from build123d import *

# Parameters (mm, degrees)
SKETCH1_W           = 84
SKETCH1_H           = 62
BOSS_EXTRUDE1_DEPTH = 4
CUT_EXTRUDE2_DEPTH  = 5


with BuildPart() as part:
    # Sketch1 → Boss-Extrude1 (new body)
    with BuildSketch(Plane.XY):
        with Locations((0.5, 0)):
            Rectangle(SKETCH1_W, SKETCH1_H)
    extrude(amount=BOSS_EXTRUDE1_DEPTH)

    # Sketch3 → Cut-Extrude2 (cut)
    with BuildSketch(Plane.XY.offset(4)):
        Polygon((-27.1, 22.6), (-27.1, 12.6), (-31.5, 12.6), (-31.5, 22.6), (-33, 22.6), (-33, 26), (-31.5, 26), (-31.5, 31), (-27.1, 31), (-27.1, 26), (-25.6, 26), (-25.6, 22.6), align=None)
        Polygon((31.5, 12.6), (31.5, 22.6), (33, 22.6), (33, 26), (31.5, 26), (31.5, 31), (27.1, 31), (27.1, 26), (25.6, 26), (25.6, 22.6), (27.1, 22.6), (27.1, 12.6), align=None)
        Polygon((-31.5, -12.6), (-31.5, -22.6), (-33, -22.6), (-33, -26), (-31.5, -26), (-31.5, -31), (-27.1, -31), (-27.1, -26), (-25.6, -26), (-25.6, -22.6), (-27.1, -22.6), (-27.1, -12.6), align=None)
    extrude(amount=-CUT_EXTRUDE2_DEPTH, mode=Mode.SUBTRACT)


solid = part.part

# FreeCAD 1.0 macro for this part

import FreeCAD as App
import Part
import Sketcher

V = App.Vector


def add_polygon(sketch, points):
    """Adds a closed chain of lines whose ends are joined by coincident constraints."""
    first, n = sketch.GeometryCount, len(points)
    for a, b in zip(points, points[1:] + points[:1]):
        sketch.addGeometry(Part.LineSegment(App.Vector(*a, 0), App.Vector(*b, 0)), False)
    for i in range(n):
        sketch.addConstraint(Sketcher.Constraint("Coincident", first + i, 2, first + (i + 1) % n, 1))

doc = App.newDocument("Part")
body = doc.addObject("PartDesign::Body", "Body")

# Sketch on XY plane
sketch1 = body.newObject("Sketcher::SketchObject", "Sketch")
sketch1.AttachmentSupport = (doc.getObject("XY_Plane"), [""])
sketch1.MapMode = "FlatFace"
add_polygon(sketch1, [(-41.5, 31), (-41.5, -31), (42.5, -31), (42.5, 31)])  # lines 0-3
sketch1.addConstraint([
    Sketcher.Constraint("Vertical", 0),
    Sketcher.Constraint("Horizontal", 1),
    Sketcher.Constraint("Vertical", 2),
    Sketcher.Constraint("Horizontal", 3),
    Sketcher.Constraint("DistanceX", 1, 1, 1, 2, 84.0),
    Sketcher.Constraint("DistanceY", 0, 2, 0, 1, 62.0),
    Sketcher.Constraint("DistanceY", 0, 2, -1, 1, 31.0),
    Sketcher.Constraint("DistanceX", 0, 2, -1, 1, 41.5),
])
pad1 = body.newObject("PartDesign::Pad", "Pad")
pad1.Profile = sketch1
pad1.Length = 4

# Sketch on XY plane
sketch2 = body.newObject("Sketcher::SketchObject", "Sketch001")
sketch2.AttachmentSupport = (doc.getObject("XY_Plane"), [""])
sketch2.MapMode = "FlatFace"
sketch2.AttachmentOffset = App.Placement(V(0, 0, 4), App.Rotation())
add_polygon(sketch2, [(-27.1, 12.6), (-27.1, 22.6), (-25.6, 22.6), (-25.6, 26), (-27.1, 26), (-27.1, 31), (-31.5, 31), (-31.5, 26), (-33, 26), (-33, 22.6), (-31.5, 22.6), (-31.5, 12.6)])  # lines 0-11
add_polygon(sketch2, [(31.5, 12.6), (31.5, 22.6), (33, 22.6), (33, 26), (31.5, 26), (31.5, 31), (27.1, 31), (27.1, 26), (25.6, 26), (25.6, 22.6), (27.1, 22.6), (27.1, 12.6)])  # lines 12-23
add_polygon(sketch2, [(-31.5, -12.6), (-31.5, -22.6), (-33, -22.6), (-33, -26), (-31.5, -26), (-31.5, -31), (-27.1, -31), (-27.1, -26), (-25.6, -26), (-25.6, -22.6), (-27.1, -22.6), (-27.1, -12.6)])  # lines 24-35
sketch2.addConstraint([
    Sketcher.Constraint("Vertical", 0),
    Sketcher.Constraint("Horizontal", 1),
    Sketcher.Constraint("Vertical", 2),
    Sketcher.Constraint("Horizontal", 3),
    Sketcher.Constraint("Vertical", 4),
    Sketcher.Constraint("Horizontal", 5),
    Sketcher.Constraint("Vertical", 6),
    Sketcher.Constraint("Horizontal", 7),
    Sketcher.Constraint("Vertical", 8),
    Sketcher.Constraint("Horizontal", 9),
    Sketcher.Constraint("Vertical", 10),
    Sketcher.Constraint("Horizontal", 11),
    Sketcher.Constraint("Vertical", 12),
    Sketcher.Constraint("Horizontal", 13),
    Sketcher.Constraint("Vertical", 14),
    Sketcher.Constraint("Horizontal", 15),
    Sketcher.Constraint("Vertical", 16),
    Sketcher.Constraint("Horizontal", 17),
    Sketcher.Constraint("Vertical", 18),
    Sketcher.Constraint("Horizontal", 19),
    Sketcher.Constraint("Vertical", 20),
    Sketcher.Constraint("Horizontal", 21),
    Sketcher.Constraint("Vertical", 22),
    Sketcher.Constraint("Horizontal", 23),
    Sketcher.Constraint("Vertical", 24),
    Sketcher.Constraint("Horizontal", 25),
    Sketcher.Constraint("Vertical", 26),
    Sketcher.Constraint("Horizontal", 27),
    Sketcher.Constraint("Vertical", 28),
    Sketcher.Constraint("Horizontal", 29),
    Sketcher.Constraint("Vertical", 30),
    Sketcher.Constraint("Horizontal", 31),
    Sketcher.Constraint("Vertical", 32),
    Sketcher.Constraint("Horizontal", 33),
    Sketcher.Constraint("Vertical", 34),
    Sketcher.Constraint("Horizontal", 35),
    Sketcher.Constraint("Symmetric", 12, 2, 24, 2, -1, 1),
    Sketcher.Constraint("Symmetric", 14, 2, 26, 2, -1, 1),
    Sketcher.Constraint("Symmetric", 16, 2, 28, 2, -1, 1),
    Sketcher.Constraint("Symmetric", 18, 2, 30, 2, -1, 1),
    Sketcher.Constraint("Symmetric", 20, 2, 32, 2, -1, 1),
    Sketcher.Constraint("Symmetric", 22, 2, 34, 2, -1, 1),
    Sketcher.Constraint("Symmetric", 9, 2, 12, 2, -2),
    Sketcher.Constraint("Symmetric", 7, 2, 14, 2, -2),
    Sketcher.Constraint("Symmetric", 5, 2, 16, 2, -2),
    Sketcher.Constraint("Symmetric", 3, 2, 18, 2, -2),
    Sketcher.Constraint("Symmetric", 1, 2, 20, 2, -2),
    Sketcher.Constraint("Symmetric", 11, 2, 22, 2, -2),
    Sketcher.Constraint("Horizontal", 3, 2, 6, 2),
    Sketcher.Constraint("Horizontal", 1, 2, 8, 2),
    Sketcher.Constraint("Vertical", 0, 2, 3, 2),
    Sketcher.Constraint("Vertical", 6, 2, 9, 2),
    Sketcher.Constraint("Equal", 3, 7),
    Sketcher.Constraint("DistanceY", 0, 1, 0, 2, 10.0),
    Sketcher.Constraint("DistanceY", 4, 1, 4, 2, 5.0),
    Sketcher.Constraint("DistanceX", 1, 1, 1, 2, 1.5),
    Sketcher.Constraint("DistanceX", 5, 2, 5, 1, 4.4),
    Sketcher.Constraint("DistanceY", 2, 1, 2, 2, 3.4),
    Sketcher.Constraint("DistanceY", -1, 1, 2, 2, 26.0),
    Sketcher.Constraint("DistanceX", 7, 2, -1, 1, 33.0),
])
pocket1 = body.newObject("PartDesign::Pocket", "Pocket")
pocket1.Profile = sketch2
pocket1.Length = 5

doc.recompute()
